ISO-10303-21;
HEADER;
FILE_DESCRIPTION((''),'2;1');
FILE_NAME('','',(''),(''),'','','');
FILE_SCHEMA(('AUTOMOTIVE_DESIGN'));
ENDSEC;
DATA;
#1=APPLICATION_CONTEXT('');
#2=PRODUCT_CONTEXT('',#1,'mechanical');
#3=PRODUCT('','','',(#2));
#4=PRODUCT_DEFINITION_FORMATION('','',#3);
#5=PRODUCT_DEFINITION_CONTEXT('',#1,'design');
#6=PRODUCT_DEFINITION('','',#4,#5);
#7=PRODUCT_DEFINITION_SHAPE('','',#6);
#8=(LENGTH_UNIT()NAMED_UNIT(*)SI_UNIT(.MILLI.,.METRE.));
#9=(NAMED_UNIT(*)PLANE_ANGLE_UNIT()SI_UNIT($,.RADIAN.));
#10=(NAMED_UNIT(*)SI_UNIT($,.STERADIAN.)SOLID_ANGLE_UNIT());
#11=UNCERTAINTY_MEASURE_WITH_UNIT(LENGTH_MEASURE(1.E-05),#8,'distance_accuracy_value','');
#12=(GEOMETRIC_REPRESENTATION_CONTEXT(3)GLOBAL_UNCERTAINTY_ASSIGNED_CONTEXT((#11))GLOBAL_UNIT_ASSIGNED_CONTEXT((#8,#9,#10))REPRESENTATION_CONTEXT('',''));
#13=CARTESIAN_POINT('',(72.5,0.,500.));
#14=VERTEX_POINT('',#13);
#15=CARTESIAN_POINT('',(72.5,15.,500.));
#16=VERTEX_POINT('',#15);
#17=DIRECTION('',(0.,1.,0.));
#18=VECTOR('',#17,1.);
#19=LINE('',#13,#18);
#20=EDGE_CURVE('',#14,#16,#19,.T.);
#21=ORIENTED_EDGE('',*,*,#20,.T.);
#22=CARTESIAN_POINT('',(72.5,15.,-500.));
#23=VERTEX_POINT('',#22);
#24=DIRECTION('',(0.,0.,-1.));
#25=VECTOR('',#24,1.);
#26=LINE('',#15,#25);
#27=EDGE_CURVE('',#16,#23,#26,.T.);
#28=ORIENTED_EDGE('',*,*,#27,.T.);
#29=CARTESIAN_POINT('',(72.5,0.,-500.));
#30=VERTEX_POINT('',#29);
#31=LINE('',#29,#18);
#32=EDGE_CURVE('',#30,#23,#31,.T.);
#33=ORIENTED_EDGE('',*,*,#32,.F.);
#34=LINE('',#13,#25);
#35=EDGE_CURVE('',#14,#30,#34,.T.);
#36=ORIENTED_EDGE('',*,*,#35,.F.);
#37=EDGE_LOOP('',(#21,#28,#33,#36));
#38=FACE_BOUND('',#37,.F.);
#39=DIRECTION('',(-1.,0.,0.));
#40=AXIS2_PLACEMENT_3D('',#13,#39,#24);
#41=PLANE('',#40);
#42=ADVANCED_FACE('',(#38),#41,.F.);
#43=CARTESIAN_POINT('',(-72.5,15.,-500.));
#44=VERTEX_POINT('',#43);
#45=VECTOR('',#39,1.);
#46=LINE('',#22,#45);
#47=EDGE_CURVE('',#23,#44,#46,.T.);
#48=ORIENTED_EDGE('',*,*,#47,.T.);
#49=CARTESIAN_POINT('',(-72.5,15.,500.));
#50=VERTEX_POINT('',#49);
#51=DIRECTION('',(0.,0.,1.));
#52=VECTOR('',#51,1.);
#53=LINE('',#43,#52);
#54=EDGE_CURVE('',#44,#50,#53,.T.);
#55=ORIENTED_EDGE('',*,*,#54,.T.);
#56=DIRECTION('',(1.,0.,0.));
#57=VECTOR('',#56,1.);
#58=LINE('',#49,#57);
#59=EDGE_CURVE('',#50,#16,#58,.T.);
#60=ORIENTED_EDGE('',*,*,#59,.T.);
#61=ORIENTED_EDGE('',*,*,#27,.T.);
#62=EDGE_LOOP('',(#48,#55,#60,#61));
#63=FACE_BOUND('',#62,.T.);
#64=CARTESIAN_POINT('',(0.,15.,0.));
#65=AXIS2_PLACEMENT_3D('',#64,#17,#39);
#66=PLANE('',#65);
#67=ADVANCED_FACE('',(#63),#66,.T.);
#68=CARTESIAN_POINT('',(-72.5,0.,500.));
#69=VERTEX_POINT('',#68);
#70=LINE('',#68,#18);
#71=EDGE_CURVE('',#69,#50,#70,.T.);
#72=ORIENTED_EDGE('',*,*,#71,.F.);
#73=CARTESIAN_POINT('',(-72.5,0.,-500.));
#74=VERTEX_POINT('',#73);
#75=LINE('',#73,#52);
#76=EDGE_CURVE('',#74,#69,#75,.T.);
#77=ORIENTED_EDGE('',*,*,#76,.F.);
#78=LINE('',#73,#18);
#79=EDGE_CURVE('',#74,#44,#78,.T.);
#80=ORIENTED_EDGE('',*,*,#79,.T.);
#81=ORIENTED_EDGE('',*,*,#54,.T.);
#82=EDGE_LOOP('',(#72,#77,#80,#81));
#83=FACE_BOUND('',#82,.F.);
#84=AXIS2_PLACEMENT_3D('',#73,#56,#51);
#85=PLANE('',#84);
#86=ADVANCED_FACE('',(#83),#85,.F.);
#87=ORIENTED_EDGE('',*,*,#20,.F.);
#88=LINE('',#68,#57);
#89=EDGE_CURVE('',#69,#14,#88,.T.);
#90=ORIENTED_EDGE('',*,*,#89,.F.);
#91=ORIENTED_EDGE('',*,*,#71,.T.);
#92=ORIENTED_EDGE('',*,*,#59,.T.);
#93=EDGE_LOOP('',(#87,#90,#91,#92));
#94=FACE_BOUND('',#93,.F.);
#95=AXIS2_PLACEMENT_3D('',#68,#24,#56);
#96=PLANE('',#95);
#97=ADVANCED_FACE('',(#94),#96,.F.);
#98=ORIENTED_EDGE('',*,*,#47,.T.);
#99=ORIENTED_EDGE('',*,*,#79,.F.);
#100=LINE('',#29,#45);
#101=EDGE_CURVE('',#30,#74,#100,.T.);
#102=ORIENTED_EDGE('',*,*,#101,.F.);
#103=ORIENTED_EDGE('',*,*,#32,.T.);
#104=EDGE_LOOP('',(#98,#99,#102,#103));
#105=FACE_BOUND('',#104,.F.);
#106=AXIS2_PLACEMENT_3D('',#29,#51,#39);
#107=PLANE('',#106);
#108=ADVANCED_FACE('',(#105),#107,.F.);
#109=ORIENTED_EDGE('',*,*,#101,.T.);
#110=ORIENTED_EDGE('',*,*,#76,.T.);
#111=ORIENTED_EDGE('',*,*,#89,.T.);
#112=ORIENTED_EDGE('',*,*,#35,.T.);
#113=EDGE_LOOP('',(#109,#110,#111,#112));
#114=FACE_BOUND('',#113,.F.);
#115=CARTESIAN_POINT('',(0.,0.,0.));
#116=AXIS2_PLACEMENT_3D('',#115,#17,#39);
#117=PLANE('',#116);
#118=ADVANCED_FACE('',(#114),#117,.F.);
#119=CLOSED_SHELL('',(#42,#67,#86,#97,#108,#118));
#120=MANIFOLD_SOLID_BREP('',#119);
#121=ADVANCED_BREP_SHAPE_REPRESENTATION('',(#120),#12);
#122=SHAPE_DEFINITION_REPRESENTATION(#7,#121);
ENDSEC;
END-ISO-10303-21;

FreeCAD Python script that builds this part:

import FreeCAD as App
import Part
import Sketcher

V = App.Vector
Q = App.Units.Quantity


def add_polygon(sketch, points):
    """Adds a closed chain of lines whose ends are joined by coincident constraints."""
    first, n = sketch.GeometryCount, len(points)
    for a, b in zip(points, points[1:] + points[:1]):
        sketch.addGeometry(Part.LineSegment(App.Vector(*a, 0), App.Vector(*b, 0)), False)
    for i in range(n):
        sketch.addConstraint(Sketcher.Constraint("Coincident", first + i, 2, first + (i + 1) % n, 1))

doc = App.newDocument("Part")
body = doc.addObject("PartDesign::Body", "Body")

# Sketch on XZ plane
sketch1 = body.newObject("Sketcher::SketchObject", "Sketch")
sketch1.AttachmentSupport = (doc.getObject("XZ_Plane"), [""])
sketch1.MapMode = "FlatFace"
add_polygon(sketch1, [(72, 500), (72, -500), (-72, -500), (-72, 500)])  # lines 0-3
sketch1.addConstraint([
    Sketcher.Constraint("Vertical", 0),
    Sketcher.Constraint("Horizontal", 1),
    Sketcher.Constraint("Vertical", 2),
    Sketcher.Constraint("Horizontal", 3),
    Sketcher.Constraint("Symmetric", 0, 2, 2, 2, -1, 1),
    Sketcher.Constraint("DistanceX", 1, 2, 1, 1, Q("145 mm")),
    Sketcher.Constraint("DistanceY", 0, 2, 0, 1, Q("1000 mm")),
])
pad1 = body.newObject("PartDesign::Pad", "Pad")
pad1.Profile = sketch1
pad1.Length = 15
pad1.Reversed = True

doc.recompute()
